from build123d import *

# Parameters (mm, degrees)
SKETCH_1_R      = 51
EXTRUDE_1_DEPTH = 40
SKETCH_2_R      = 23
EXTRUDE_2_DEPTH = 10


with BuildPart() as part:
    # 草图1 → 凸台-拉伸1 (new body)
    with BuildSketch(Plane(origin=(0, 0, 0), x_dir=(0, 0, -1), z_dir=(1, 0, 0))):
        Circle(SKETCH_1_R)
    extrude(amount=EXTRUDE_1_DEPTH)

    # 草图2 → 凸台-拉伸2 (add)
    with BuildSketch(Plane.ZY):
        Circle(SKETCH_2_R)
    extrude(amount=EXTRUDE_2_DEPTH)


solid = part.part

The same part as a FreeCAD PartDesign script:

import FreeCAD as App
import Part
import Sketcher

V = App.Vector

doc = App.newDocument("Part")
body = doc.addObject("PartDesign::Body", "Body")

# Sketch on YZ plane
sketch1 = body.newObject("Sketcher::SketchObject", "Sketch")
sketch1.AttachmentSupport = (doc.getObject("YZ_Plane"), [""])
sketch1.MapMode = "FlatFace"
sketch1.addGeometry(Part.Circle(V(0, 0, 0), V(0, 0, 1), 51), False)
sketch1.addConstraint(Sketcher.Constraint("Coincident", 0, 3, -1, 1))
sketch1.addConstraint(Sketcher.Constraint("Diameter", 0, 102.0))
pad1 = body.newObject("PartDesign::Pad", "Pad")
pad1.Profile = sketch1
pad1.Length = 40

# Sketch on YZ plane
sketch2 = body.newObject("Sketcher::SketchObject", "Sketch001")
sketch2.AttachmentSupport = (doc.getObject("YZ_Plane"), [""])
sketch2.MapMode = "FlatFace"
sketch2.addGeometry(Part.Circle(V(0, 0, 0), V(0, 0, 1), 23), False)
sketch2.addConstraint(Sketcher.Constraint("Coincident", 0, 3, -1, 1))
sketch2.addConstraint(Sketcher.Constraint("Diameter", 0, 46.0))
pad2 = body.newObject("PartDesign::Pad", "Pad001")
pad2.Profile = sketch2
pad2.Length = 10
pad2.Reversed = True

doc.recompute()
